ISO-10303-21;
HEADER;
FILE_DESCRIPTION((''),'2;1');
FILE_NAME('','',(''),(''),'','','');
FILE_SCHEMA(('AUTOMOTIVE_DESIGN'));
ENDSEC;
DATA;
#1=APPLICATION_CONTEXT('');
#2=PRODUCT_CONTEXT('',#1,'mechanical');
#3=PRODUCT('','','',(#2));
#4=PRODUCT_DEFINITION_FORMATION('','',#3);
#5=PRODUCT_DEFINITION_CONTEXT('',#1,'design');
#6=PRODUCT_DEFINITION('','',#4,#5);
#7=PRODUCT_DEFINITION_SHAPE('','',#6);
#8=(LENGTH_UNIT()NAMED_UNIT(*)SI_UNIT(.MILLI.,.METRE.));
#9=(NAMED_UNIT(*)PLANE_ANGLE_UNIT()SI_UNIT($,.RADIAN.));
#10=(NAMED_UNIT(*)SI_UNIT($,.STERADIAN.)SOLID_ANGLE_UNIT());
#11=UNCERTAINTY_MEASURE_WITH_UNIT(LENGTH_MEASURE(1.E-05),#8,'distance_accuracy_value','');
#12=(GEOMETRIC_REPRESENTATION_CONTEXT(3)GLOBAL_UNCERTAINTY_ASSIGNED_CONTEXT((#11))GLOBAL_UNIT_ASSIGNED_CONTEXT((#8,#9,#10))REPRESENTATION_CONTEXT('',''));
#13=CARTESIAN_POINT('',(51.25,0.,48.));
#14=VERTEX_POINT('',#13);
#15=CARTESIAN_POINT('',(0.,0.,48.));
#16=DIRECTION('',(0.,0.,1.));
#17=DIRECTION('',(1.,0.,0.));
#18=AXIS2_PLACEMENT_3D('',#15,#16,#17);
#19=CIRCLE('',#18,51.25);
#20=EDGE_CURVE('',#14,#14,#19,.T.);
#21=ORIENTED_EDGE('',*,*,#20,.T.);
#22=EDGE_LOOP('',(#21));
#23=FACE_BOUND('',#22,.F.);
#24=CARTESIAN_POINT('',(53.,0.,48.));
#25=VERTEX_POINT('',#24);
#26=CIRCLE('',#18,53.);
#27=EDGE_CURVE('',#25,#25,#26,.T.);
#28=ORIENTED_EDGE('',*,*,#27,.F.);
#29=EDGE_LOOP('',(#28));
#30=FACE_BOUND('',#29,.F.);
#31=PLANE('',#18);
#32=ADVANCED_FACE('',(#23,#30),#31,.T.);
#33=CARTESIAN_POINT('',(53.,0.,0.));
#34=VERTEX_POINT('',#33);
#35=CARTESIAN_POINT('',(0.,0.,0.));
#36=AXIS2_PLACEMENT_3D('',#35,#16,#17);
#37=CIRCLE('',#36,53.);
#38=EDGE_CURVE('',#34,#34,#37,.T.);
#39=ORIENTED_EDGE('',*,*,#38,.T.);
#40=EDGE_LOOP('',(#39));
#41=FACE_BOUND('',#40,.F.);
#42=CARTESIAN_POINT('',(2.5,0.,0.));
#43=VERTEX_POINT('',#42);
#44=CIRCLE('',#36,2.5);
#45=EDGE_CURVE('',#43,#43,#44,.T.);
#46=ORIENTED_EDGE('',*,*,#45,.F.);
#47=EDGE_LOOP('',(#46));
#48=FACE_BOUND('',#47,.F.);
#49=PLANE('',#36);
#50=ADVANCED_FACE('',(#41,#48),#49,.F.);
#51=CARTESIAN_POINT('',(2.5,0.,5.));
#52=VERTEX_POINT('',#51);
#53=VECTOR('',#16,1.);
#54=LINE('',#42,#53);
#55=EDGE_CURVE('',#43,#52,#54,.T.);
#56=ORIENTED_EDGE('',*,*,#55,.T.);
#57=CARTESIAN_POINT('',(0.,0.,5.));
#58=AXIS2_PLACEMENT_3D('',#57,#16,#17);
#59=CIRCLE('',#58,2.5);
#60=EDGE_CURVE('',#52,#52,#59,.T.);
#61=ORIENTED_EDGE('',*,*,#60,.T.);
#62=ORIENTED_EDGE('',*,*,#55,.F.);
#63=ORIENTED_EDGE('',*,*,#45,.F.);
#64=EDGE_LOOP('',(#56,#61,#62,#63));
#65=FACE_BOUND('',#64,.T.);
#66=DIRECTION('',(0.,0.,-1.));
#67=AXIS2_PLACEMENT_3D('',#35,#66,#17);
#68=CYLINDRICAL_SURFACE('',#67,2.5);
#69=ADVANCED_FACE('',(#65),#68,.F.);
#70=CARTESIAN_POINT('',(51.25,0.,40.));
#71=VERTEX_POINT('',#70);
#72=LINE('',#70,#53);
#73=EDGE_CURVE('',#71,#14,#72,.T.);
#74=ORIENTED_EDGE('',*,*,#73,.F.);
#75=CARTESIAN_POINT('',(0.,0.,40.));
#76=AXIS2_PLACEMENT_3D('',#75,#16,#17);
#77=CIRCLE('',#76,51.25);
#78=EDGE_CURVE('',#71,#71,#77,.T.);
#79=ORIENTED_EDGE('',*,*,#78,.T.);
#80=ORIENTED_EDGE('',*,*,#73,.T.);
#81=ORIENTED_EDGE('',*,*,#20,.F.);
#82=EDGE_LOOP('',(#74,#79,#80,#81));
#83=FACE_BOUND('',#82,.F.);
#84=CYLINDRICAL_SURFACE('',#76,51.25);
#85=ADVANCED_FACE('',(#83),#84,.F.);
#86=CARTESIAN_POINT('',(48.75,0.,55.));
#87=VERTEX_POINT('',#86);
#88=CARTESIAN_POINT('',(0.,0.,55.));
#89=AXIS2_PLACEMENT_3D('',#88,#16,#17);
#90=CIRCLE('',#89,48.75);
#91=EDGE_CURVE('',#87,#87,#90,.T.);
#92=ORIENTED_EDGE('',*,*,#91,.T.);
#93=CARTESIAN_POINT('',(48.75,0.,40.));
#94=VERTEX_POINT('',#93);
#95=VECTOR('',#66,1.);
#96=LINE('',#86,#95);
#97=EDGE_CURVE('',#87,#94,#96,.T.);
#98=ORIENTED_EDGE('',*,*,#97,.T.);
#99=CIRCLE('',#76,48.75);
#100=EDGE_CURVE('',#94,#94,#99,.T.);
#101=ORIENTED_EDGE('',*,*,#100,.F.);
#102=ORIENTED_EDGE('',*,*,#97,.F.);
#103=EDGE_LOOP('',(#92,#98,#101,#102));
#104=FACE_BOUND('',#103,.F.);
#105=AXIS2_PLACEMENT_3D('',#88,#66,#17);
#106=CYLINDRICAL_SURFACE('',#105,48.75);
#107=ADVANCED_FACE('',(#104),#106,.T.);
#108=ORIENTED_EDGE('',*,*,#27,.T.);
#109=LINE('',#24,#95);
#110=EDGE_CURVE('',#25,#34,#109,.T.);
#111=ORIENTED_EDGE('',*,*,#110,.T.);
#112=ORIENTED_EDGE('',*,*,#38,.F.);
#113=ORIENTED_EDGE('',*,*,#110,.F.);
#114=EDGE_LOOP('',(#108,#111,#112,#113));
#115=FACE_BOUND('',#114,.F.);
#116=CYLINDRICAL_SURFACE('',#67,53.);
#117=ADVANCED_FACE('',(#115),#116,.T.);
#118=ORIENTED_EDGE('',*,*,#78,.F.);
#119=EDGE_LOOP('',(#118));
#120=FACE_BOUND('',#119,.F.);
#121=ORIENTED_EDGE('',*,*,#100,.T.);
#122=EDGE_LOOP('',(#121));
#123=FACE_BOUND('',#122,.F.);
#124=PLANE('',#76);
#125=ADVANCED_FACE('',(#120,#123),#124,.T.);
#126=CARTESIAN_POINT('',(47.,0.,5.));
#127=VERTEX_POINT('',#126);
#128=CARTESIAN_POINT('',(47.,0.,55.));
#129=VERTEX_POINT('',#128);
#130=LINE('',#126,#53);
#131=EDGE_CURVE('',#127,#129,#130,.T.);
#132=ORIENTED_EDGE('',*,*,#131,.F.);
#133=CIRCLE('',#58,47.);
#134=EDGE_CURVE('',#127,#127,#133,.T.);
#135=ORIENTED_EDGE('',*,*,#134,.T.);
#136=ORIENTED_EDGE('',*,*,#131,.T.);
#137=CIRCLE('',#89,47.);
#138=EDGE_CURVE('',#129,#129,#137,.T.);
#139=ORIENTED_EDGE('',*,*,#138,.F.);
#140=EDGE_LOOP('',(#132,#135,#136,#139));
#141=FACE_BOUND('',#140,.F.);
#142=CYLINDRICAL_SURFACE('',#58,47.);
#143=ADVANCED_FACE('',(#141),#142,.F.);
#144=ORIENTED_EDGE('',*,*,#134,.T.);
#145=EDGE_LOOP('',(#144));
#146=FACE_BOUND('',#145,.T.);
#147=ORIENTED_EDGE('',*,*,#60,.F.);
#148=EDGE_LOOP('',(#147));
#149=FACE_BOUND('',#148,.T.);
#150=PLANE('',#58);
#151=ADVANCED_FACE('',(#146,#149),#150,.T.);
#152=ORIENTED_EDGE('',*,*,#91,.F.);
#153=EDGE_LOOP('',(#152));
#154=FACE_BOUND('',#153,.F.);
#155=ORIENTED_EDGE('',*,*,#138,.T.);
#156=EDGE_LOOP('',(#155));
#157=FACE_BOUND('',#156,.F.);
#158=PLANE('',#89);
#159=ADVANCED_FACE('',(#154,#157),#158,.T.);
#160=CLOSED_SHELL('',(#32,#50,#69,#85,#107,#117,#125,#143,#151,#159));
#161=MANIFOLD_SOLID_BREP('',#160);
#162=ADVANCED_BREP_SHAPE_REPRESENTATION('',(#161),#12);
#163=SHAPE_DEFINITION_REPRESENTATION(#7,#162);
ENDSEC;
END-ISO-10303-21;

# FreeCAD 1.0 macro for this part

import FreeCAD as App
import Part
import Sketcher
from FreeCAD import Vector

doc = App.newDocument("Part")
body = doc.addObject("PartDesign::Body", "Body")

# Sketch on XY plane
sketch1 = doc.addObject("Sketcher::SketchObject", "Sketch")
body.addObject(sketch1)
sketch1.AttachmentSupport = (doc.XY_Plane, [""])
sketch1.MapMode = "FlatFace"
sketch1.addGeometry([
    Part.Circle(Vector(0, 0, 0), Vector(0, 0, 1), 53),
    Part.Circle(Vector(0, 0, 0), Vector(0, 0, 1), 2.5),
], False)
sketch1.addConstraint([
    Sketcher.Constraint("Coincident", 0, 3, -1, 1),
    Sketcher.Constraint("Coincident", 1, 3, -1, 1),
    Sketcher.Constraint("Diameter", 0, 106.0),
    Sketcher.Constraint("Diameter", 1, 5.0),
])
pad1 = doc.addObject("PartDesign::Pad", "Pad")
body.addObject(pad1)
pad1.Profile = sketch1
pad1.Length = 5

# Sketch on XZ plane
sketch2 = doc.addObject("Sketcher::SketchObject", "Sketch001")
body.addObject(sketch2)
sketch2.AttachmentSupport = (doc.XZ_Plane, [""])
sketch2.MapMode = "FlatFace"
sketch2.addGeometry([
    Part.LineSegment(Vector(47, 5, 0), Vector(53, 5, 0)),  # 0
    Part.LineSegment(Vector(53, 5, 0), Vector(53, 48, 0)),  # 1
    Part.LineSegment(Vector(53, 48, 0), Vector(51.2, 48, 0)),  # 2
    Part.LineSegment(Vector(51.2, 48, 0), Vector(51.2, 40, 0)),  # 3
    Part.LineSegment(Vector(51.2, 40, 0), Vector(48.8, 40, 0)),  # 4
    Part.LineSegment(Vector(48.8, 40, 0), Vector(48.8, 55, 0)),  # 5
    Part.LineSegment(Vector(48.8, 55, 0), Vector(47, 55, 0)),  # 6
    Part.LineSegment(Vector(47, 55, 0), Vector(47, 5, 0)),  # 7
], False)
sketch2.addConstraint([
    Sketcher.Constraint("Coincident", 0, 2, 1, 1),
    Sketcher.Constraint("Coincident", 1, 2, 2, 1),
    Sketcher.Constraint("Coincident", 2, 2, 3, 1),
    Sketcher.Constraint("Coincident", 3, 2, 4, 1),
    Sketcher.Constraint("Coincident", 4, 2, 5, 1),
    Sketcher.Constraint("Coincident", 5, 2, 6, 1),
    Sketcher.Constraint("Coincident", 6, 2, 7, 1),
    Sketcher.Constraint("Coincident", 7, 2, 0, 1),
    Sketcher.Constraint("Horizontal", 0),
    Sketcher.Constraint("Vertical", 1),
    Sketcher.Constraint("Horizontal", 2),
    Sketcher.Constraint("Vertical", 3),
    Sketcher.Constraint("Horizontal", 4),
    Sketcher.Constraint("Vertical", 5),
    Sketcher.Constraint("Horizontal", 6),
    Sketcher.Constraint("Vertical", 7),
    Sketcher.Constraint("Equal", 2, 6),
    Sketcher.Constraint("DistanceX", 0, 1, 0, 2, 6.0),
    Sketcher.Constraint("DistanceY", 1, 1, 1, 2, 43.0),
    Sketcher.Constraint("DistanceY", 3, 2, 3, 1, 8.0),
    Sketcher.Constraint("DistanceY", 5, 1, 5, 2, 15.0),
    Sketcher.Constraint("DistanceX", 4, 2, 4, 1, 2.5),
    Sketcher.Constraint("DistanceX", -1, 1, 0, 2, 53.0),
    Sketcher.Constraint("DistanceY", -1, 1, 0, 2, 5.0),
])
revolution = doc.addObject("PartDesign::Revolution", "Revolution")
body.addObject(revolution)
revolution.Profile = sketch2
revolution.ReferenceAxis = (sketch2, ["V_Axis"])
revolution.Angle = 360

doc.recompute()
